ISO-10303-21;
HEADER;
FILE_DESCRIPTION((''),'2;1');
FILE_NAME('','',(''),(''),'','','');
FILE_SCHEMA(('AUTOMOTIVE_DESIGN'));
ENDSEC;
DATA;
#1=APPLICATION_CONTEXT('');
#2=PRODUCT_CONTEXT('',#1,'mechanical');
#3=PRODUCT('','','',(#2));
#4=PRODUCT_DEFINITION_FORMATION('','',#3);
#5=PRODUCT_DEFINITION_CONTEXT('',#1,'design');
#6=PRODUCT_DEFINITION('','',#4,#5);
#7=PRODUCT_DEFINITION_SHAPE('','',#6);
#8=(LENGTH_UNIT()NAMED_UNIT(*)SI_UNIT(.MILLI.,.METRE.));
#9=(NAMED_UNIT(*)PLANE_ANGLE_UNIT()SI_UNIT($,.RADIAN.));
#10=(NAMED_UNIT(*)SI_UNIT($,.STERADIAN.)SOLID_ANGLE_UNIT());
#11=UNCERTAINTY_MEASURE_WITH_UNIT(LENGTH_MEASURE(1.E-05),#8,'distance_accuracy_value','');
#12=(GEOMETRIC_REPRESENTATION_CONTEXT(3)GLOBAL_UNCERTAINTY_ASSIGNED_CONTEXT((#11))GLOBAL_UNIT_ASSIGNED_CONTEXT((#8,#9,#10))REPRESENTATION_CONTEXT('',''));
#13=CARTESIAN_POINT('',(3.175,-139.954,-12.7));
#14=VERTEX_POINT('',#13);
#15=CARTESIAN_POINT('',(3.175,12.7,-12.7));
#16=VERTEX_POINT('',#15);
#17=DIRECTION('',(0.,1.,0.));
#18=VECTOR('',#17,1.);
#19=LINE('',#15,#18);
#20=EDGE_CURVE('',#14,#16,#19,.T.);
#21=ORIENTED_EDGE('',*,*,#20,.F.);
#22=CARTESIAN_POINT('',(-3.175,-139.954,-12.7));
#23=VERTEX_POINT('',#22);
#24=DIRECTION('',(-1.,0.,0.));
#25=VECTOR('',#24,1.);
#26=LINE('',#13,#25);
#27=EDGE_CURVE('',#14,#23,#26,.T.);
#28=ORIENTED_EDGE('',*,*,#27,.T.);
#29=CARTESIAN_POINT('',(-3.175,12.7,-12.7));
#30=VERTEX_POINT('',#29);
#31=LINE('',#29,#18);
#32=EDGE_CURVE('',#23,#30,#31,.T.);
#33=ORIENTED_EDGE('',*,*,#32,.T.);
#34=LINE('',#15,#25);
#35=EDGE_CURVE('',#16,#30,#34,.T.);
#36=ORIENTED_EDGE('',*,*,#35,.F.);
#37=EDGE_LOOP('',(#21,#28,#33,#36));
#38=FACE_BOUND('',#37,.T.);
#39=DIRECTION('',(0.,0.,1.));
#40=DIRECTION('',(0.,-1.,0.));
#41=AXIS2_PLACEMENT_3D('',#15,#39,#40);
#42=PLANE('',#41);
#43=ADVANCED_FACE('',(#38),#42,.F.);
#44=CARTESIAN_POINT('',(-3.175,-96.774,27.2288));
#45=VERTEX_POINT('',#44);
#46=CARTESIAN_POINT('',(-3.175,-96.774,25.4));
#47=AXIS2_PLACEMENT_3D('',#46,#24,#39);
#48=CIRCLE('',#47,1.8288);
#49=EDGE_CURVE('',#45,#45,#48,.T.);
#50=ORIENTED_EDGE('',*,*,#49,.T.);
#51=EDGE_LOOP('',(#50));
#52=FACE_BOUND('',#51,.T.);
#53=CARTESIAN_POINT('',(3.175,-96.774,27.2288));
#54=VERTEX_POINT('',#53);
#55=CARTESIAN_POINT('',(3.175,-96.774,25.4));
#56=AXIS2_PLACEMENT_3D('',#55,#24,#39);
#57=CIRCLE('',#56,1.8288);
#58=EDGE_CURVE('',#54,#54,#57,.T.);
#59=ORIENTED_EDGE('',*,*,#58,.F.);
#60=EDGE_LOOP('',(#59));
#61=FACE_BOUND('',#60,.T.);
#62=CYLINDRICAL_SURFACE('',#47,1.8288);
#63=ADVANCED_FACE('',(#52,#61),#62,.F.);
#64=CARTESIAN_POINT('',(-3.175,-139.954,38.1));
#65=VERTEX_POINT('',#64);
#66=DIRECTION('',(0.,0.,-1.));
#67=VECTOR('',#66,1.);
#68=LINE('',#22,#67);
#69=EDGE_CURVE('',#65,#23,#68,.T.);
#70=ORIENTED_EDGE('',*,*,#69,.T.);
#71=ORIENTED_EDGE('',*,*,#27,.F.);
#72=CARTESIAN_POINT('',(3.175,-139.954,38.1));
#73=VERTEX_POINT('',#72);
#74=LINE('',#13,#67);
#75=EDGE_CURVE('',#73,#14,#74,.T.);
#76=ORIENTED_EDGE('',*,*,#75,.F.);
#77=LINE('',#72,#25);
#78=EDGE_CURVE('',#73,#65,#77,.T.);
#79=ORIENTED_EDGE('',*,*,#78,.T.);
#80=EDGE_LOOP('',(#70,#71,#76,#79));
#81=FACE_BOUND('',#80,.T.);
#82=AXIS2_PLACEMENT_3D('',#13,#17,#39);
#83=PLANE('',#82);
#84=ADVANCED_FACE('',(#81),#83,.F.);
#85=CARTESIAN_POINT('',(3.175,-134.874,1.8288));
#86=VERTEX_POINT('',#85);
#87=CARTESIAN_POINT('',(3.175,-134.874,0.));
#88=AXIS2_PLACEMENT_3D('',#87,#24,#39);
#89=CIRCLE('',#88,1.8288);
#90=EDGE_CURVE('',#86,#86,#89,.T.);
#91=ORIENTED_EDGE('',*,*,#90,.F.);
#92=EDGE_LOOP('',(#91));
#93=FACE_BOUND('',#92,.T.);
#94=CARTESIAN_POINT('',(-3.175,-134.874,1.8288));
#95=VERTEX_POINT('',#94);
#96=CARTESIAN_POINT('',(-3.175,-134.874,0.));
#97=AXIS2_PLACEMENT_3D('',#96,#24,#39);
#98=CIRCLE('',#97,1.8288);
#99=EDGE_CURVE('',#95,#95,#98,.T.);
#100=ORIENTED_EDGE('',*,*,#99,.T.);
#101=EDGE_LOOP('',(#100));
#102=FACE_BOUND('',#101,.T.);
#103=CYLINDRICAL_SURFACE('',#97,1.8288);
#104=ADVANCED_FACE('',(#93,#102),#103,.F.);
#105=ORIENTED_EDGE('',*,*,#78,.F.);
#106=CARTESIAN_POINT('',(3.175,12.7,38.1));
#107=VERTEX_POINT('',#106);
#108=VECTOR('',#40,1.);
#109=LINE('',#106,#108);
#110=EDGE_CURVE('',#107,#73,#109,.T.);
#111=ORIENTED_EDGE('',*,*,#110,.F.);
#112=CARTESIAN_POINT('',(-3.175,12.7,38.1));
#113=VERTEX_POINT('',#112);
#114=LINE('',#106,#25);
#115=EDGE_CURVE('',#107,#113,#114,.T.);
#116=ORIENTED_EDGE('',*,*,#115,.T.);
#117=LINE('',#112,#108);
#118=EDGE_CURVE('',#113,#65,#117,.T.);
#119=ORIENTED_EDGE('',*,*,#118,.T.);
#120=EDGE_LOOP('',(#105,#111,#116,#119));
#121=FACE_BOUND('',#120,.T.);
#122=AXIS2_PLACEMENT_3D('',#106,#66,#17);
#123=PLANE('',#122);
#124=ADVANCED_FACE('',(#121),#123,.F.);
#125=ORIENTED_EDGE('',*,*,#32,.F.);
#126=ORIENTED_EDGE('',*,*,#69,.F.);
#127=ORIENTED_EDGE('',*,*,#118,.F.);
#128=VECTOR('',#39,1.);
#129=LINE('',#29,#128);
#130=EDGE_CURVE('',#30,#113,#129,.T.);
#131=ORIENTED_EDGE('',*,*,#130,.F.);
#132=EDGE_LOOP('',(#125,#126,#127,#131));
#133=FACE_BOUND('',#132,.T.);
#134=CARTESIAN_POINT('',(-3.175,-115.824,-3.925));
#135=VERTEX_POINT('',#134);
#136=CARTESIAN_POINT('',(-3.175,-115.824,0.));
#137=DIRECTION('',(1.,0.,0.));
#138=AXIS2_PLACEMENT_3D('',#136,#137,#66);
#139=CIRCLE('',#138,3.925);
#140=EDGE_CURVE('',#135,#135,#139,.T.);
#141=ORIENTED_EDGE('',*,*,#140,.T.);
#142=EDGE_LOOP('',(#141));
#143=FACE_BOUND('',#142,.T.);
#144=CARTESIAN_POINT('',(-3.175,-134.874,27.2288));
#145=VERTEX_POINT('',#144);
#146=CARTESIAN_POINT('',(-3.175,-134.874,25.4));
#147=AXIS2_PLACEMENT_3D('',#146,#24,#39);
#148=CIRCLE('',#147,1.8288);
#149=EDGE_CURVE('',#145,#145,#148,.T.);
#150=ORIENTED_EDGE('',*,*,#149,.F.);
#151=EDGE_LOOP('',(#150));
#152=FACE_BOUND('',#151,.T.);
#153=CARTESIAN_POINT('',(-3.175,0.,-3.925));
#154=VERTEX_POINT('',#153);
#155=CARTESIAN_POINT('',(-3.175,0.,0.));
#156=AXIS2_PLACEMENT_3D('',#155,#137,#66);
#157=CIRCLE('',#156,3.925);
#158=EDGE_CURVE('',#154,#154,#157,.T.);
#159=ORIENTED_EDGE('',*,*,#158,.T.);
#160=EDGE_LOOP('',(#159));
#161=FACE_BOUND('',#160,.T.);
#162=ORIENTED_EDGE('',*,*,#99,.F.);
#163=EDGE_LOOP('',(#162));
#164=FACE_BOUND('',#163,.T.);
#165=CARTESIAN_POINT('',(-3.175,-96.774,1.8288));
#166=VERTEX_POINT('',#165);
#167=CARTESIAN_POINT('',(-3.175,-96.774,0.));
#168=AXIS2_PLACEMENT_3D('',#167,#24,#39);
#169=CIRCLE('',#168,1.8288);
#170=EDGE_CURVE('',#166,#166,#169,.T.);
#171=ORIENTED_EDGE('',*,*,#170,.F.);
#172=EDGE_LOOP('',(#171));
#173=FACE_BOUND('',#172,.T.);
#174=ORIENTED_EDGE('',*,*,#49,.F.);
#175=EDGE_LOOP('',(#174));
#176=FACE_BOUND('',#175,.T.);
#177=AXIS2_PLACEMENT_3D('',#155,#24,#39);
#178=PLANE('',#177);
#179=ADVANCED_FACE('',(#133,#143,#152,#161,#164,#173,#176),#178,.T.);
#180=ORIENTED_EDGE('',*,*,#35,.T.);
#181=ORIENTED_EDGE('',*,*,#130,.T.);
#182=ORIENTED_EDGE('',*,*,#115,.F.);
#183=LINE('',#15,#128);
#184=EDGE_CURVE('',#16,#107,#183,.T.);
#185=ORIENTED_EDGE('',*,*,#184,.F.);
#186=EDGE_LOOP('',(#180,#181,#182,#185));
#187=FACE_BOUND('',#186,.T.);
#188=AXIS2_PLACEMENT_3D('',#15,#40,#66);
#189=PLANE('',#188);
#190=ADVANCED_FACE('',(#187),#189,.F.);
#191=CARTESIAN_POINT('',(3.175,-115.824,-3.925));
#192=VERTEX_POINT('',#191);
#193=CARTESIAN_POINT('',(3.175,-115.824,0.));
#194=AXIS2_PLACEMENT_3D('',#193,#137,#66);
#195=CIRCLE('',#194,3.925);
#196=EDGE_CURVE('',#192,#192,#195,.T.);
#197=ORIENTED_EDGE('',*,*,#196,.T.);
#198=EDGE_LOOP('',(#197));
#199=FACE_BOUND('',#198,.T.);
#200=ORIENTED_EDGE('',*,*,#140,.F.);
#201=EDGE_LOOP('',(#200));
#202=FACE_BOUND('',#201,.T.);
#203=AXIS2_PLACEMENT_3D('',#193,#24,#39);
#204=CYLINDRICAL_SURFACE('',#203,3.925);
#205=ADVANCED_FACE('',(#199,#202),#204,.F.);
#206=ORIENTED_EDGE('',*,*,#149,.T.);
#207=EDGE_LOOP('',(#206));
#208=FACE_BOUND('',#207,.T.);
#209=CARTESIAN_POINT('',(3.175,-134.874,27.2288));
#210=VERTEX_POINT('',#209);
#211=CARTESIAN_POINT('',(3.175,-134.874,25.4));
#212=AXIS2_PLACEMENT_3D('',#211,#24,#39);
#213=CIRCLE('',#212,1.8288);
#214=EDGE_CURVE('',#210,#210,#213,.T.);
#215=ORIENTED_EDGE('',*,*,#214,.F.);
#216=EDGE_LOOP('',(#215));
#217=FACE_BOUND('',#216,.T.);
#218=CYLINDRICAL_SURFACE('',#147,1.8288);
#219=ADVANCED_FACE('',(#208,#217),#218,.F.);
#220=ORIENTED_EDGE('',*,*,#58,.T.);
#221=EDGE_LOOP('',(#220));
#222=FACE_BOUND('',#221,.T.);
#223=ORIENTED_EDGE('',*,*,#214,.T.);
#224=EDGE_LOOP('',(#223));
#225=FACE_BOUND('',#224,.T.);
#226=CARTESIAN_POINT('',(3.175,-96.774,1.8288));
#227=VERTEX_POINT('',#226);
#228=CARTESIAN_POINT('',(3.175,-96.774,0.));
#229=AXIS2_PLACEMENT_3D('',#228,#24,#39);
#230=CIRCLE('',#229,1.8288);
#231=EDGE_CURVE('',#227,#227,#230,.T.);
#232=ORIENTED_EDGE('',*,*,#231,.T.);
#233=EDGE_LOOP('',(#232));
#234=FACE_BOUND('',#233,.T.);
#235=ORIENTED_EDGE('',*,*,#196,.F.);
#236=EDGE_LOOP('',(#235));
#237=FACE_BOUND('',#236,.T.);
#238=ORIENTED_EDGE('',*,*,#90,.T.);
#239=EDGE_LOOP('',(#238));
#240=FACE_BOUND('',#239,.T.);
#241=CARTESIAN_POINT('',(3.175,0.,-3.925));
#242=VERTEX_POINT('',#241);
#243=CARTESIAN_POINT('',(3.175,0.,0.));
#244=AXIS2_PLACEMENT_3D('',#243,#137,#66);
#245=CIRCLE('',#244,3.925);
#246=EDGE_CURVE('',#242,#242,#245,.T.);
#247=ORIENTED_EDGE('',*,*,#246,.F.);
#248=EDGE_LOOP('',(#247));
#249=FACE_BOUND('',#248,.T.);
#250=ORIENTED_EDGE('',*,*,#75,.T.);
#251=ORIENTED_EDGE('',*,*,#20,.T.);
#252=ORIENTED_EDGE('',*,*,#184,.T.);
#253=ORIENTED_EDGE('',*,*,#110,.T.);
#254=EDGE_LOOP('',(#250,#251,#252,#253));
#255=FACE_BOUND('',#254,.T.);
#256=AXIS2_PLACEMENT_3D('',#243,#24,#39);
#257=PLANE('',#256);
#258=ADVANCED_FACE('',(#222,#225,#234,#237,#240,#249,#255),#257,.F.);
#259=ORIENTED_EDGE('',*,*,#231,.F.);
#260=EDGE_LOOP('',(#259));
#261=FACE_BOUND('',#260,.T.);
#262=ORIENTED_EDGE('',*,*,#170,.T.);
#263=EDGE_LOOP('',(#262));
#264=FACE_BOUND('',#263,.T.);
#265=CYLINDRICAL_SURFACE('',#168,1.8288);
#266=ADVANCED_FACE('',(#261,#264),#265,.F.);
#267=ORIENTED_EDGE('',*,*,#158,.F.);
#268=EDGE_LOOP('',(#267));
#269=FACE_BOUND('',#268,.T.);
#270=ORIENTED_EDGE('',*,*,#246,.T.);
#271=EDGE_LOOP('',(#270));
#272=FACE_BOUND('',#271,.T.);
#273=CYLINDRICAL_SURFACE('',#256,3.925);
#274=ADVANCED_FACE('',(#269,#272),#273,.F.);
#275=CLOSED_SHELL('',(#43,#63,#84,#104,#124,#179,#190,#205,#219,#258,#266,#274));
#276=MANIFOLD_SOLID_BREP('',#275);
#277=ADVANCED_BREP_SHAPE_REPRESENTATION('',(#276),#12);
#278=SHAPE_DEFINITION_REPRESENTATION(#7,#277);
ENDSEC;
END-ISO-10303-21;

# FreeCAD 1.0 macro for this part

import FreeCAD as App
import Part
import Sketcher
Q = App.Units.Quantity

doc = App.newDocument("Part")
body = doc.addObject("PartDesign::Body", "Body")

sketch1 = body.newObject("Sketcher::SketchObject", "Sketch")
sketch1.AttachmentSupport = (doc.getObject("YZ_Plane"), [""])
sketch1.MapMode = "FlatFace"
sketch1.addGeometry(Part.LineSegment(App.Vector(12.7, 38.1, 0), App.Vector(-140, 38.1, 0)), False)
sketch1.addGeometry(Part.LineSegment(App.Vector(-140, 38.1, 0), App.Vector(-140, -12.7, 0)), False)
sketch1.addGeometry(Part.LineSegment(App.Vector(-140, -12.7, 0), App.Vector(12.7, -12.7, 0)), False)
sketch1.addGeometry(Part.LineSegment(App.Vector(12.7, -12.7, 0), App.Vector(12.7, 38.1, 0)), False)
sketch1.addGeometry(Part.Circle(App.Vector(-115.8, 0, 0), App.Vector(0, 0, 1), 3.9), False)
sketch1.addGeometry(Part.Circle(App.Vector(0, 0, 0), App.Vector(0, 0, 1), 3.9), False)
sketch1.addConstraint(Sketcher.Constraint("Coincident", 0, 2, 1, 1))
sketch1.addConstraint(Sketcher.Constraint("Coincident", 1, 2, 2, 1))
sketch1.addConstraint(Sketcher.Constraint("Coincident", 2, 2, 3, 1))
sketch1.addConstraint(Sketcher.Constraint("Coincident", 3, 2, 0, 1))
sketch1.addConstraint(Sketcher.Constraint("Horizontal", 0))
sketch1.addConstraint(Sketcher.Constraint("Vertical", 1))
sketch1.addConstraint(Sketcher.Constraint("Horizontal", 2))
sketch1.addConstraint(Sketcher.Constraint("Vertical", 3))
sketch1.addConstraint(Sketcher.Constraint("Coincident", 5, 3, -1, 1))
sketch1.addConstraint(Sketcher.Constraint("Equal", 4, 5))
sketch1.addConstraint(Sketcher.Constraint("PointOnObject", 4, 3, -1))
sketch1.addConstraint(Sketcher.Constraint("DistanceY", 1, 2, 1, 1, Q("2 in")))
sketch1.addConstraint(Sketcher.Constraint("DistanceX", 0, 2, 0, 1, Q("6.01 in")))
sketch1.addConstraint(Sketcher.Constraint("DistanceY", -1, 1, 0, 2, Q("1.5 in")))
sketch1.addConstraint(Sketcher.Constraint("DistanceX", -1, 1, 2, 2, Q("0.5 in")))
sketch1.addConstraint(Sketcher.Constraint("Diameter", 4, Q("7.85 mm")))
sketch1.addConstraint(Sketcher.Constraint("DistanceX", 4, 3, -1, 1, Q("4.56 in")))
pad1 = body.newObject("PartDesign::Pad", "Pad")
pad1.Profile = sketch1
pad1.Length = Q("0.25 in")
pad1.Midplane = True

sketch2 = body.newObject("Sketcher::SketchObject", "Sketch001")
sketch2.AttachmentSupport = (doc.getObject("YZ_Plane"), [""])
sketch2.MapMode = "FlatFace"
sketch2.AttachmentOffset = App.Placement(App.Vector(0, 0, -0.125 * 25.4), App.Rotation())
sketch2.addGeometry(Part.Circle(App.Vector(-96.8, 0, 0), App.Vector(0, 0, 1), 1.8), False)
sketch2.addGeometry(Part.Circle(App.Vector(-96.8, 25.4, 0), App.Vector(0, 0, 1), 1.8), False)
sketch2.addGeometry(Part.Circle(App.Vector(-134.9, 25.4, 0), App.Vector(0, 0, 1), 1.8), False)
sketch2.addGeometry(Part.Circle(App.Vector(-134.9, 0, 0), App.Vector(0, 0, 1), 1.8), False)
sketch2.addConstraint(Sketcher.Constraint("Equal", 0, 1))
sketch2.addConstraint(Sketcher.Constraint("Equal", 1, 2))
sketch2.addConstraint(Sketcher.Constraint("Equal", 2, 3))
sketch2.addConstraint(Sketcher.Constraint("PointOnObject", 0, 3, -1))
sketch2.addConstraint(Sketcher.Constraint("PointOnObject", 3, 3, -1))
sketch2.addConstraint(Sketcher.Constraint("Horizontal", 1, 3, 2, 3))
sketch2.addConstraint(Sketcher.Constraint("Vertical", 0, 3, 1, 3))
sketch2.addConstraint(Sketcher.Constraint("Vertical", 2, 3, 3, 3))
sketch2.addConstraint(Sketcher.Constraint("Diameter", 0, Q("0.144 in")))
sketch2.addConstraint(Sketcher.Constraint("DistanceY", -1, 1, 1, 3, Q("1 in")))
sketch2.addConstraint(Sketcher.Constraint("DistanceX", 2, 3, 1, 3, Q("1.5 in")))
sketch2.addConstraint(Sketcher.Constraint("DistanceX", 0, 3, -1, 1, Q("3.81 in")))
doc.recompute()
hole = body.newObject("PartDesign::Hole", "Hole")
hole.Profile = sketch2
hole.ThreadType = "None"
hole.Diameter = Q("0.144 in")
hole.DepthType = "ThroughAll"
hole.Reversed = True

doc.recompute()
